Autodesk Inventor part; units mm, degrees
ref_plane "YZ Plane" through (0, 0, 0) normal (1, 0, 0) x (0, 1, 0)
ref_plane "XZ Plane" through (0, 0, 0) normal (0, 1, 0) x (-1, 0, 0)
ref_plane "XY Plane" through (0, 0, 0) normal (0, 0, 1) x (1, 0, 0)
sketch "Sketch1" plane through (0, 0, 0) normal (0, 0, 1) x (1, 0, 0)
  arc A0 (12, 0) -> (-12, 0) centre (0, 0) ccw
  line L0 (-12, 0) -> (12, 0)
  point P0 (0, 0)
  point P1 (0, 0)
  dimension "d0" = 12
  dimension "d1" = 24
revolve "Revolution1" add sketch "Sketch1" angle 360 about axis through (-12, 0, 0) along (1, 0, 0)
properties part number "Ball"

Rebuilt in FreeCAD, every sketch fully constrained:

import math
import FreeCAD as App
import Part
import Sketcher

V = App.Vector
Q = App.Units.Quantity

doc = App.newDocument("Part")
body = doc.addObject("PartDesign::Body", "Body")

# Sketch on XY plane
sketch1 = body.newObject("Sketcher::SketchObject", "Sketch")
sketch1.AttachmentSupport = (doc.getObject("XY_Plane"), [""])
sketch1.MapMode = "FlatFace"
sketch1.addGeometry(Part.LineSegment(V(-12, 0, 0), V(12, 0, 0)), False)
sketch1.addGeometry(Part.ArcOfCircle(Part.Circle(V(0, 0, 0), V(0, 0, 1), 12), math.radians(0), math.radians(180)), False)
sketch1.addConstraint(Sketcher.Constraint("Coincident", 0, 1, 1, 2))
sketch1.addConstraint(Sketcher.Constraint("Coincident", 1, 1, 0, 2))
sketch1.addConstraint(Sketcher.Constraint("Horizontal", 0))
sketch1.addConstraint(Sketcher.Constraint("Coincident", 1, 3, -1, 1))
sketch1.addConstraint(Sketcher.Constraint("PointOnObject", 0, 1, -1))
sketch1.addConstraint(Sketcher.Constraint("Radius", 1, Q("12 mm")))
revolution = body.newObject("PartDesign::Revolution", "Revolution")
revolution.Profile = sketch1
revolution.ReferenceAxis = (sketch1, ["H_Axis"])
revolution.Angle = 360

doc.recompute()
